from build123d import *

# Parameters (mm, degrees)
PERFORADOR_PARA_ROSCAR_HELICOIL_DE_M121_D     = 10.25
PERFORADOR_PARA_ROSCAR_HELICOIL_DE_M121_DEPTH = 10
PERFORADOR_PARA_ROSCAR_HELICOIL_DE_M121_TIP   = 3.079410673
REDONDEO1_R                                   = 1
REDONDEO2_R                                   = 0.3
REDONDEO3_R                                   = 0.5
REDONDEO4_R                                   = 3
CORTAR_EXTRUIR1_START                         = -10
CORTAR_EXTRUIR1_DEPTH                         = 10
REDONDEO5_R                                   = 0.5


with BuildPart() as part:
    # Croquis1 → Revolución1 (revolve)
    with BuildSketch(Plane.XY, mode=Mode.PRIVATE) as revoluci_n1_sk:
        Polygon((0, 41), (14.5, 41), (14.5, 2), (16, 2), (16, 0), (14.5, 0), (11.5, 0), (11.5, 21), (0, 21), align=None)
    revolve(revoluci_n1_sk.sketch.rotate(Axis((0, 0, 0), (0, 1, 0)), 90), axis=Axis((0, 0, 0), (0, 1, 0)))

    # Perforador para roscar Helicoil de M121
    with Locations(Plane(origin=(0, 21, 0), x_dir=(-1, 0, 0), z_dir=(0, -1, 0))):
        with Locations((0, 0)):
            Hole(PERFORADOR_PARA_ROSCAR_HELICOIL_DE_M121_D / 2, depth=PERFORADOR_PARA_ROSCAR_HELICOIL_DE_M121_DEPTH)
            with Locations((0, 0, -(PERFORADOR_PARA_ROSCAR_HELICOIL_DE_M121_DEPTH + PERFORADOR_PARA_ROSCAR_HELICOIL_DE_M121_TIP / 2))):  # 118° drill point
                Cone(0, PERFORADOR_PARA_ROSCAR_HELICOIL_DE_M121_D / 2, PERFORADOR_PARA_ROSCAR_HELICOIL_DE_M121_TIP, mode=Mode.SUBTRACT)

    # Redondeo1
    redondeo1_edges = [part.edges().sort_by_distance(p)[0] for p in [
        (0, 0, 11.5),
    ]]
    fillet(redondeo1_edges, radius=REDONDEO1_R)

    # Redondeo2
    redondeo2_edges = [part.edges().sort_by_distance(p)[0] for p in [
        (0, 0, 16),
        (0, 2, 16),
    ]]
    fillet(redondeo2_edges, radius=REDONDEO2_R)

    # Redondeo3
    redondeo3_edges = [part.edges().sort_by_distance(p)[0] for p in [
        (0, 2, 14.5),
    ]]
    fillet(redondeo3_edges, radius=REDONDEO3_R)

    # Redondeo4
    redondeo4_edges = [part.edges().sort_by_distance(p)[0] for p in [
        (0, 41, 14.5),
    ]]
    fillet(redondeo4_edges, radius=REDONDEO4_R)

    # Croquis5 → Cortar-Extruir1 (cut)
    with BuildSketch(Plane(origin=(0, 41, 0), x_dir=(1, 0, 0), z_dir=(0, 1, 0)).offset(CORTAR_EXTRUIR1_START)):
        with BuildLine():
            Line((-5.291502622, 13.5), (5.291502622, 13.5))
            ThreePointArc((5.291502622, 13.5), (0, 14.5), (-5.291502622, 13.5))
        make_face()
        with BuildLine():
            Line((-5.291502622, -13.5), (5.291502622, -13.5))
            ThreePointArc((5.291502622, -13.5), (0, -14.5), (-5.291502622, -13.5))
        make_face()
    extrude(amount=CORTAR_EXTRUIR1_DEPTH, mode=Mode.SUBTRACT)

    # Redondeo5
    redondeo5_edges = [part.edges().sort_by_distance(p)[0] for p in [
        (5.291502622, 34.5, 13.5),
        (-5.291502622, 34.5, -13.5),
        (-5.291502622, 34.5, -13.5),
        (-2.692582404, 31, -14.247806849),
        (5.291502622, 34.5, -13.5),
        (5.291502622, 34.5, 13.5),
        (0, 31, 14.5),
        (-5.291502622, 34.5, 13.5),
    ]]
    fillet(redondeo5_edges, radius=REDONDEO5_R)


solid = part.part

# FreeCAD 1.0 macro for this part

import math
import FreeCAD as App
import Part
import Sketcher
from FreeCAD import Vector


def edges_at(feature, points):
    """Names of the edges that pass closest to the given points."""
    edges = feature.Shape.Edges
    near = lambda p: min(range(len(edges)), key=lambda i: edges[i].distToShape(Part.Vertex(*p))[0])
    return sorted({f"Edge{near(p) + 1}" for p in points})

doc = App.newDocument("Part")
body = doc.addObject("PartDesign::Body", "Body")

# Sketch on XY plane
sketch1 = doc.addObject("Sketcher::SketchObject", "Sketch")
body.addObject(sketch1)
sketch1.AttachmentSupport = (doc.XY_Plane, [""])
sketch1.MapMode = "FlatFace"
sketch1.addGeometry(Part.LineSegment(Vector(14.5, 41, 0), Vector(0, 41, 0)), False)
sketch1.addGeometry(Part.LineSegment(Vector(0, 41, 0), Vector(0, 21, 0)), False)
sketch1.addGeometry(Part.LineSegment(Vector(0, 21, 0), Vector(11.5, 21, 0)), False)
sketch1.addGeometry(Part.LineSegment(Vector(11.5, 21, 0), Vector(11.5, 0, 0)), False)
sketch1.addGeometry(Part.LineSegment(Vector(11.5, 0, 0), Vector(16, 0, 0)), False)
sketch1.addGeometry(Part.LineSegment(Vector(16, 0, 0), Vector(16, 2, 0)), False)
sketch1.addGeometry(Part.LineSegment(Vector(16, 2, 0), Vector(14.5, 2, 0)), False)
sketch1.addGeometry(Part.LineSegment(Vector(14.5, 2, 0), Vector(14.5, 41, 0)), False)
sketch1.addConstraint(Sketcher.Constraint("Coincident", 0, 2, 1, 1))
sketch1.addConstraint(Sketcher.Constraint("Coincident", 1, 2, 2, 1))
sketch1.addConstraint(Sketcher.Constraint("Coincident", 2, 2, 3, 1))
sketch1.addConstraint(Sketcher.Constraint("Coincident", 3, 2, 4, 1))
sketch1.addConstraint(Sketcher.Constraint("Coincident", 4, 2, 5, 1))
sketch1.addConstraint(Sketcher.Constraint("Coincident", 5, 2, 6, 1))
sketch1.addConstraint(Sketcher.Constraint("Coincident", 6, 2, 7, 1))
sketch1.addConstraint(Sketcher.Constraint("Coincident", 7, 2, 0, 1))
sketch1.addConstraint(Sketcher.Constraint("Horizontal", 0))
sketch1.addConstraint(Sketcher.Constraint("Vertical", 1))
sketch1.addConstraint(Sketcher.Constraint("Horizontal", 2))
sketch1.addConstraint(Sketcher.Constraint("Vertical", 3))
sketch1.addConstraint(Sketcher.Constraint("Horizontal", 4))
sketch1.addConstraint(Sketcher.Constraint("Vertical", 5))
sketch1.addConstraint(Sketcher.Constraint("Horizontal", 6))
sketch1.addConstraint(Sketcher.Constraint("Vertical", 7))
sketch1.addConstraint(Sketcher.Constraint("PointOnObject", 0, 2, -2))
sketch1.addConstraint(Sketcher.Constraint("PointOnObject", 3, 2, -1))
sketch1.addConstraint(Sketcher.Constraint("DistanceY", 1, 2, 1, 1, 20.0))
sketch1.addConstraint(Sketcher.Constraint("DistanceY", 3, 2, 3, 1, 21.0))
sketch1.addConstraint(Sketcher.Constraint("DistanceY", 5, 1, 5, 2, 2.0))
sketch1.addConstraint(Sketcher.Constraint("DistanceX", 0, 2, 0, 1, 14.5))
sketch1.addConstraint(Sketcher.Constraint("DistanceX", 2, 1, 2, 2, 11.5))
sketch1.addConstraint(Sketcher.Constraint("DistanceX", 4, 1, 4, 2, 4.5))
revolution = doc.addObject("PartDesign::Revolution", "Revolution")
body.addObject(revolution)
revolution.Profile = sketch1
revolution.ReferenceAxis = (sketch1, ["V_Axis"])
revolution.Angle = 360

# Sketch on XZ plane
sketch2 = doc.addObject("Sketcher::SketchObject", "Sketch001")
body.addObject(sketch2)
sketch2.AttachmentSupport = (doc.XZ_Plane, [""])
sketch2.MapMode = "FlatFace"
sketch2.AttachmentOffset = App.Placement(Vector(0, 0, -21), App.Rotation())
sketch2.addGeometry(Part.Circle(Vector(0, 0, 0), Vector(0, 0, 1), 5.125), False)
sketch2.addConstraint(Sketcher.Constraint("Coincident", 0, 3, -1, 1))
sketch2.addConstraint(Sketcher.Constraint("Diameter", 0, 10.25))
doc.recompute()
hole = doc.addObject("PartDesign::Hole", "Hole")
body.addObject(hole)
hole.Profile = sketch2
hole.ThreadType = "None"
hole.Diameter = 10.25
hole.DepthType = "Dimension"
hole.Depth = 10
hole.DrillPoint = "Angled"
hole.DrillPointAngle = 118
doc.recompute()

fillet = doc.addObject("PartDesign::Fillet", "Fillet")
body.addObject(fillet)
fillet.Base = (hole, edges_at(hole, [(0, 0, 11.5)]))
fillet.Radius = 1
doc.recompute()

fillet2 = doc.addObject("PartDesign::Fillet", "Fillet001")
body.addObject(fillet2)
fillet2.Base = (fillet, edges_at(fillet, [(0, 0, 16), (0, 2, 16)]))
fillet2.Radius = 0.3
doc.recompute()

fillet3 = doc.addObject("PartDesign::Fillet", "Fillet002")
body.addObject(fillet3)
fillet3.Base = (fillet2, edges_at(fillet2, [(0, 2, 14.5)]))
fillet3.Radius = 0.5
doc.recompute()

fillet4 = doc.addObject("PartDesign::Fillet", "Fillet003")
body.addObject(fillet4)
fillet4.Base = (fillet3, edges_at(fillet3, [(0, 41, 14.5)]))
fillet4.Radius = 3

# Sketch on XZ plane
sketch3 = doc.addObject("Sketcher::SketchObject", "Sketch002")
body.addObject(sketch3)
sketch3.AttachmentSupport = (doc.XZ_Plane, [""])
sketch3.MapMode = "FlatFace"
sketch3.AttachmentOffset = App.Placement(Vector(0, 0, -31), App.Rotation())
sketch3.addGeometry(Part.LineSegment(Vector(-5.291503, -13.5, 0), Vector(5.291503, -13.5, 0)), False)
sketch3.addGeometry(Part.ArcOfCircle(Part.Circle(Vector(0, 0, 0), Vector(0, 0, 1), 14.5), math.radians(-111.40335), math.radians(-68.59665)), False)
sketch3.addGeometry(Part.LineSegment(Vector(5.291503, 13.5, 0), Vector(-5.291503, 13.5, 0)), False)
sketch3.addGeometry(Part.ArcOfCircle(Part.Circle(Vector(0, 0, 0), Vector(0, 0, 1), 14.5), math.radians(68.59665), math.radians(111.40335)), False)
sketch3.addConstraint(Sketcher.Constraint("Coincident", 0, 1, 1, 1))
sketch3.addConstraint(Sketcher.Constraint("Coincident", 1, 2, 0, 2))
sketch3.addConstraint(Sketcher.Constraint("Coincident", 2, 1, 3, 1))
sketch3.addConstraint(Sketcher.Constraint("Coincident", 3, 2, 2, 2))
sketch3.addConstraint(Sketcher.Constraint("Horizontal", 0))
sketch3.addConstraint(Sketcher.Constraint("Horizontal", 2))
sketch3.addConstraint(Sketcher.Constraint("Coincident", 1, 3, -1, 1))
sketch3.addConstraint(Sketcher.Constraint("Coincident", 3, 3, -1, 1))
sketch3.addConstraint(Sketcher.Constraint("Equal", 1, 3))
sketch3.addConstraint(Sketcher.Constraint("Vertical", 1, 2, 2, 1))
sketch3.addConstraint(Sketcher.Constraint("Radius", 1, 14.5))
sketch3.addConstraint(Sketcher.Constraint("DistanceY", 1, 2, 2, 1, 27.0))
pocket1 = doc.addObject("PartDesign::Pocket", "Pocket")
body.addObject(pocket1)
pocket1.Profile = sketch3
pocket1.Length = 10
doc.recompute()

fillet5 = doc.addObject("PartDesign::Fillet", "Fillet004")
body.addObject(fillet5)
fillet5.Base = (pocket1, edges_at(pocket1, [
    (5.292, 34.5, 13.5),
    (-5.292, 34.5, -13.5),
    (-5.292, 34.5, -13.5),
    (-2.693, 31, -14.248),
    (5.292, 34.5, -13.5),
    (5.292, 34.5, 13.5),
    (0, 31, 14.5),
    (-5.292, 34.5, 13.5),
]))
fillet5.Radius = 0.5

doc.recompute()
